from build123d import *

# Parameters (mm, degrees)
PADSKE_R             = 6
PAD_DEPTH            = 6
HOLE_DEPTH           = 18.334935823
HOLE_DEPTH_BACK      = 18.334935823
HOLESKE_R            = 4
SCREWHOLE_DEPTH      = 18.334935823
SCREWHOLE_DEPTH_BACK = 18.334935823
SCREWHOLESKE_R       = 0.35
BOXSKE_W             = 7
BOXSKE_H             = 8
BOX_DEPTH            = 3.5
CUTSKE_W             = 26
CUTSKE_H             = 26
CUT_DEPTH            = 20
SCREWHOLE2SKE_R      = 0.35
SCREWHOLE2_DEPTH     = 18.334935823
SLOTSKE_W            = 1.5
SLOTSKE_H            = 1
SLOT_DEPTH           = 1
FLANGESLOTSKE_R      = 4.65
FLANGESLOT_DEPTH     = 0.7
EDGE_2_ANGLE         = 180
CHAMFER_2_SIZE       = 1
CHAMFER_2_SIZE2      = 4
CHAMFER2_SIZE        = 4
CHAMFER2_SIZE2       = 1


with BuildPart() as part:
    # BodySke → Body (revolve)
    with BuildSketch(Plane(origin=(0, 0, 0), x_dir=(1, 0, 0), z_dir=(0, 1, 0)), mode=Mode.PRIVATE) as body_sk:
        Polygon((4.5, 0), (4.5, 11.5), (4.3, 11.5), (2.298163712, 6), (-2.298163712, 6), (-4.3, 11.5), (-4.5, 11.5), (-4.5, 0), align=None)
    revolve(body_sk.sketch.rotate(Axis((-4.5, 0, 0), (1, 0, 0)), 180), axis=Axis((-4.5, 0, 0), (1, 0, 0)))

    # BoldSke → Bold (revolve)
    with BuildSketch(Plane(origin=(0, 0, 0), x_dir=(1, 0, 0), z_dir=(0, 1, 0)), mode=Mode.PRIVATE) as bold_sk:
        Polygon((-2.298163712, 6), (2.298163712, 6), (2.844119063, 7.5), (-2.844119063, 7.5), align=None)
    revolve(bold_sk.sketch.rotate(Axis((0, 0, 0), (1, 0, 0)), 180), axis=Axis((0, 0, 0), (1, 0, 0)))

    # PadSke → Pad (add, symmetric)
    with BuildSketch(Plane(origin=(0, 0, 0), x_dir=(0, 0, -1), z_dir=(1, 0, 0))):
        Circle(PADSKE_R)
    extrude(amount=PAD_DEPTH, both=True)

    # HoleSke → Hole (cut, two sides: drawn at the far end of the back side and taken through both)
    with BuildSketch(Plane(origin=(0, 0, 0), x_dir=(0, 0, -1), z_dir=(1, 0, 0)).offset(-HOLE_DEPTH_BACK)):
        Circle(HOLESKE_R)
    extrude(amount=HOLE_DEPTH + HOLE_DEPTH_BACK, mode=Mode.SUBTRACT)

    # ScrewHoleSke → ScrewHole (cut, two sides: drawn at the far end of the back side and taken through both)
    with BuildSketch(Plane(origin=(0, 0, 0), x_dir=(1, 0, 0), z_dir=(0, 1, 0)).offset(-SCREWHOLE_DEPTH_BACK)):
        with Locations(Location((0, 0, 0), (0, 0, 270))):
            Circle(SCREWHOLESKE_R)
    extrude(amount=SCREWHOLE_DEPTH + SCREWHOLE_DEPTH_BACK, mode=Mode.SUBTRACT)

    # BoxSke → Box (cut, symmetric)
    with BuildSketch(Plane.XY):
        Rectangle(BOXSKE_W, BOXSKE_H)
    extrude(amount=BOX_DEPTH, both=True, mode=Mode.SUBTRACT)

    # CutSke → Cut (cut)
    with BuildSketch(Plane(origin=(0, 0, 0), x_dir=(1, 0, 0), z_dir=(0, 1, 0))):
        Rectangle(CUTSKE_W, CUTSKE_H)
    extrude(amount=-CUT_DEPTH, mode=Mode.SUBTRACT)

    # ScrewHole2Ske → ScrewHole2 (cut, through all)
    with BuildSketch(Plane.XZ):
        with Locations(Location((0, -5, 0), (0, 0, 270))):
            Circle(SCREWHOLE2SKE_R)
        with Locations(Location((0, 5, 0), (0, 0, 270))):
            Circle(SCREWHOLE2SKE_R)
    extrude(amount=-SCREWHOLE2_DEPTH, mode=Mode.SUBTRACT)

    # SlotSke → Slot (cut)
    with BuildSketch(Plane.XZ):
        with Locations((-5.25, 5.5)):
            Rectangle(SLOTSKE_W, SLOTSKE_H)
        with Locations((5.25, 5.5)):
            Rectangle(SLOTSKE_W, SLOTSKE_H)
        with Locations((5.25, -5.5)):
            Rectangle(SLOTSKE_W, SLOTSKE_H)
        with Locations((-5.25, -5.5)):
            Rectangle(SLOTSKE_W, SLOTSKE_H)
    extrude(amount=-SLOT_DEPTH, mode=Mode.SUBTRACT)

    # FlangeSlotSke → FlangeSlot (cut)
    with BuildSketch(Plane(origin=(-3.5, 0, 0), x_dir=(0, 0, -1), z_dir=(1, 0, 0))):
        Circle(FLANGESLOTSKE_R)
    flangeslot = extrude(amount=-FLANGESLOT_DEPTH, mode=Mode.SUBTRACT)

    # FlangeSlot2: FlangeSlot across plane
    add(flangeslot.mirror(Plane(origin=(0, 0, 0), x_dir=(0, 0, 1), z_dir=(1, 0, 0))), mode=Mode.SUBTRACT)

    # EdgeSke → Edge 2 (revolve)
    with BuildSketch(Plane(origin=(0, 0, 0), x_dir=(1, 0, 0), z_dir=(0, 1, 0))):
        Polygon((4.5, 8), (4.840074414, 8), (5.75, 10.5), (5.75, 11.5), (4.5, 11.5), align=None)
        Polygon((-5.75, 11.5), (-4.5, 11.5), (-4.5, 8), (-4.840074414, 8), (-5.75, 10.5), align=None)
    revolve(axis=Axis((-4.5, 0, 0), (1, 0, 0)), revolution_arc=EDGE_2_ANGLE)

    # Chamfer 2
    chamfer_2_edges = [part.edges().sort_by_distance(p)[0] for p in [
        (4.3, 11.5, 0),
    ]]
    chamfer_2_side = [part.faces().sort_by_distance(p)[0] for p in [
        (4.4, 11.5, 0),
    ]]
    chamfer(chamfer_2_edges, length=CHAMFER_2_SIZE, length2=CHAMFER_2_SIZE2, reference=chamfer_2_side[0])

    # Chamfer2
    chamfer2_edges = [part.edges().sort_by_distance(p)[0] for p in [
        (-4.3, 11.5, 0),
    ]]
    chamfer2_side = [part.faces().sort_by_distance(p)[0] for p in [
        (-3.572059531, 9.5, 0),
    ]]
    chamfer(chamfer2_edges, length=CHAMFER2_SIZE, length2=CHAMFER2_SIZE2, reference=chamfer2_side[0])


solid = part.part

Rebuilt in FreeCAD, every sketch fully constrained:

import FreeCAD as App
import Part
import Sketcher

V = App.Vector
Q = App.Units.Quantity


def edges_at(feature, points):
    """Names of the edges that pass closest to the given points."""
    edges = feature.Shape.Edges
    near = lambda p: min(range(len(edges)), key=lambda i: edges[i].distToShape(Part.Vertex(*p))[0])
    return sorted({f"Edge{near(p) + 1}" for p in points})


def add_polygon(sketch, points):
    """Adds a closed chain of lines whose ends are joined by coincident constraints."""
    first, n = sketch.GeometryCount, len(points)
    for a, b in zip(points, points[1:] + points[:1]):
        sketch.addGeometry(Part.LineSegment(App.Vector(*a, 0), App.Vector(*b, 0)), False)
    for i in range(n):
        sketch.addConstraint(Sketcher.Constraint("Coincident", first + i, 2, first + (i + 1) % n, 1))

doc = App.newDocument("Part")
params = doc.addObject("Spreadsheet::Sheet", "Params")
for row, (alias, value) in enumerate([
    ("sketch1_width", "9 mm"),
    ("sketch1_width2", "0.2 mm"),
    ("sketch1_height", "11.5 mm"),
    ("revolution_angle", "360 deg"),
    ("revolution2_angle", "360 deg"),
    ("sketch3_diameter", "12 mm"),
    ("pad1_length", "12 mm"),
    ("sketch4_diameter", "8 mm"),
    ("sketch5_diameter", "0.7 mm"),
    ("sketch6_width", "7 mm"),
    ("sketch6_height", "8 mm"),
    ("pocket3_length", "7 mm"),
    ("sketch7_width", "26 mm"),
    ("pocket4_length", "20 mm"),
    ("sketch8_diameter", "0.7 mm"),
    ("sketch9_height", "1 mm"),
    ("sketch9_width", "1.5 mm"),
    ("pocket6_length", "1 mm"),
    ("sketch10_diameter", "9.3 mm"),
    ("pocket7_length", "0.7 mm"),
    ("sketch11_height", "1 mm"),
    ("sketch11_height2", "3.5 mm"),
    ("sketch11_width", "1.25 mm"),
    ("revolution3_angle", "180 deg"),
    ("chamfer_size", "1 mm"),
    ("chamfer_size2", "4 mm"),
    ("chamfer2_size", "4 mm"),
    ("chamfer2_size2", "1 mm"),
], start=1):
    params.set(f"A{row}", alias)
    params.set(f"B{row}", "=" + value)
    params.setAlias(f"B{row}", alias)

body = doc.addObject("PartDesign::Body", "Body")

sketch1 = body.newObject("Sketcher::SketchObject", "Sketch")
sketch1.AttachmentSupport = (doc.getObject("XZ_Plane"), [""])
sketch1.MapMode = "FlatFace"
add_polygon(sketch1, [(4.5, 0), (4.5, -11.5), (4.3, -11.5), (2.298164, -6), (-2.298164, -6), (-4.3, -11.5), (-4.5, -11.5), (-4.5, 0)])
sketch1.addConstraint(Sketcher.Constraint("Vertical", 0))
sketch1.addConstraint(Sketcher.Constraint("Horizontal", 1))
sketch1.addConstraint(Sketcher.Constraint("Horizontal", 3))
sketch1.addConstraint(Sketcher.Constraint("Horizontal", 5))
sketch1.addConstraint(Sketcher.Constraint("Vertical", 6))
sketch1.addConstraint(Sketcher.Constraint("Horizontal", 7))
sketch1.addConstraint(Sketcher.Constraint("Symmetric", 6, 2, 7, 2, -1, 1))
sketch1.addConstraint(Sketcher.Constraint("Symmetric", 1, 2, 4, 2, -2))
sketch1.addConstraint(Sketcher.Constraint("Equal", 2, 4))
sketch1.addConstraint(Sketcher.Constraint("DistanceX", 7, 1, 7, 2, 9.0))
sketch1.addConstraint(Sketcher.Constraint("Angle", 2, Q("110 deg")))
sketch1.addConstraint(Sketcher.Constraint("DistanceX", 1, 2, 1, 1, 0.2))
sketch1.addConstraint(Sketcher.Constraint("DistanceY", 0, 2, 0, 1, 11.5))
sketch1.addConstraint(Sketcher.Constraint("DistanceY", 2, 2, -1, 1, 6.0))
sketch1.setExpression("Constraints[17]", "Params.sketch1_width")
sketch1.setExpression("Constraints[19]", "Params.sketch1_width2")
sketch1.setExpression("Constraints[20]", "Params.sketch1_height")
revolution = body.newObject("PartDesign::Revolution", "Revolution")
revolution.Profile = sketch1
revolution.ReferenceAxis = (sketch1, ["H_Axis"])
revolution.setExpression("Angle", "Params.revolution_angle")

sketch2 = body.newObject("Sketcher::SketchObject", "Sketch001")
sketch2.AttachmentSupport = (doc.getObject("XZ_Plane"), [""])
sketch2.MapMode = "FlatFace"
add_polygon(sketch2, [(-2.298164, -6), (2.298164, -6), (2.844119, -7.5), (-2.844119, -7.5)])
sketch2.addConstraint(Sketcher.Constraint("Horizontal", 0))
sketch2.addConstraint(Sketcher.Constraint("Horizontal", 2))
sketch2.addConstraint(Sketcher.Constraint("Equal", 1, 3))
sketch2.addConstraint(Sketcher.Constraint("Angle", 1, Q("-70 deg")))
sketch2.addConstraint(Sketcher.Constraint("DistanceY", 0, 2, -1, 1, 6.0))
sketch2.addConstraint(Sketcher.Constraint("DistanceY", 1, 2, -1, 1, 7.5))
sketch2.addConstraint(Sketcher.Constraint("DistanceX", 2, 2, 2, 1, 5.688238))
sketch2.addConstraint(Sketcher.Constraint("DistanceX", -1, 1, 1, 2, 2.844119))
revolution2 = body.newObject("PartDesign::Revolution", "Revolution001")
revolution2.Profile = sketch2
revolution2.ReferenceAxis = (sketch2, ["H_Axis"])
revolution2.setExpression("Angle", "Params.revolution2_angle")

sketch3 = body.newObject("Sketcher::SketchObject", "Sketch002")
sketch3.AttachmentSupport = (doc.getObject("YZ_Plane"), [""])
sketch3.MapMode = "FlatFace"
sketch3.addGeometry(Part.Circle(V(0, 0, 0), V(0, 0, 1), 6), False)
sketch3.addConstraint(Sketcher.Constraint("Coincident", 0, 3, -1, 1))
sketch3.addConstraint(Sketcher.Constraint("Diameter", 0, 12.0))
sketch3.setExpression("Constraints[1]", "Params.sketch3_diameter")
pad1 = body.newObject("PartDesign::Pad", "Pad")
pad1.Profile = sketch3
pad1.setExpression("Length", "Params.pad1_length")
pad1.Midplane = True

sketch4 = body.newObject("Sketcher::SketchObject", "Sketch003")
sketch4.AttachmentSupport = (doc.getObject("YZ_Plane"), [""])
sketch4.MapMode = "FlatFace"
sketch4.addGeometry(Part.Circle(V(0, 0, 0), V(0, 0, 1), 4), False)
sketch4.addConstraint(Sketcher.Constraint("Coincident", 0, 3, -1, 1))
sketch4.addConstraint(Sketcher.Constraint("Diameter", 0, 8.0))
sketch4.setExpression("Constraints[1]", "Params.sketch4_diameter")
pocket1 = body.newObject("PartDesign::Pocket", "Pocket")
pocket1.Profile = sketch4
pocket1.Type = "ThroughAll"
pocket1.Midplane = True

sketch5 = body.newObject("Sketcher::SketchObject", "Sketch004")
sketch5.AttachmentSupport = (doc.getObject("XZ_Plane"), [""])
sketch5.MapMode = "FlatFace"
sketch5.addGeometry(Part.Circle(V(0, 0, 0), V(0, 0, 1), 0.35), False)
sketch5.addConstraint(Sketcher.Constraint("Coincident", 0, 3, -1, 1))
sketch5.addConstraint(Sketcher.Constraint("Diameter", 0, 0.7))
sketch5.setExpression("Constraints[1]", "Params.sketch5_diameter")
pocket2 = body.newObject("PartDesign::Pocket", "Pocket001")
pocket2.Profile = sketch5
pocket2.Type = "ThroughAll"
pocket2.Midplane = True

sketch6 = body.newObject("Sketcher::SketchObject", "Sketch005")
sketch6.AttachmentSupport = (doc.getObject("XY_Plane"), [""])
sketch6.MapMode = "FlatFace"
add_polygon(sketch6, [(-3.5, 4), (-3.5, -4), (3.5, -4), (3.5, 4)])
sketch6.addConstraint(Sketcher.Constraint("Vertical", 0))
sketch6.addConstraint(Sketcher.Constraint("Horizontal", 1))
sketch6.addConstraint(Sketcher.Constraint("Vertical", 2))
sketch6.addConstraint(Sketcher.Constraint("Horizontal", 3))
sketch6.addConstraint(Sketcher.Constraint("Symmetric", 0, 2, 2, 2, -1, 1))
sketch6.addConstraint(Sketcher.Constraint("DistanceX", 1, 1, 1, 2, 7.0))
sketch6.addConstraint(Sketcher.Constraint("DistanceY", 0, 2, 0, 1, 8.0))
sketch6.setExpression("Constraints[9]", "Params.sketch6_width")
sketch6.setExpression("Constraints[10]", "Params.sketch6_height")
pocket3 = body.newObject("PartDesign::Pocket", "Pocket002")
pocket3.Profile = sketch6
pocket3.setExpression("Length", "Params.pocket3_length")
pocket3.Midplane = True

sketch7 = body.newObject("Sketcher::SketchObject", "Sketch006")
sketch7.AttachmentSupport = (doc.getObject("XZ_Plane"), [""])
sketch7.MapMode = "FlatFace"
add_polygon(sketch7, [(-13, -13), (-13, 13), (13, 13), (13, -13)])
sketch7.addConstraint(Sketcher.Constraint("Vertical", 0))
sketch7.addConstraint(Sketcher.Constraint("Horizontal", 1))
sketch7.addConstraint(Sketcher.Constraint("Vertical", 2))
sketch7.addConstraint(Sketcher.Constraint("Horizontal", 3))
sketch7.addConstraint(Sketcher.Constraint("Symmetric", 0, 2, 2, 2, -1, 1))
sketch7.addConstraint(Sketcher.Constraint("Equal", 3, 0))
sketch7.addConstraint(Sketcher.Constraint("DistanceX", 1, 1, 1, 2, 26.0))
sketch7.setExpression("Constraints[10]", "Params.sketch7_width")
pocket4 = body.newObject("PartDesign::Pocket", "Pocket003")
pocket4.Profile = sketch7
pocket4.setExpression("Length", "Params.pocket4_length")
pocket4.Reversed = True

sketch8 = body.newObject("Sketcher::SketchObject", "Sketch007")
sketch8.AttachmentSupport = (doc.getObject("XZ_Plane"), [""])
sketch8.MapMode = "FlatFace"
sketch8.addGeometry(Part.Circle(V(0, -5, 0), V(0, 0, 1), 0.35), False)
sketch8.addGeometry(Part.Circle(V(0, 5, 0), V(0, 0, 1), 0.35), False)
sketch8.addConstraint(Sketcher.Constraint("Equal", 0, 1))
sketch8.addConstraint(Sketcher.Constraint("Symmetric", 0, 3, 1, 3, -1, 1))
sketch8.addConstraint(Sketcher.Constraint("PointOnObject", 0, 3, -2))
sketch8.addConstraint(Sketcher.Constraint("Diameter", 0, 0.7))
sketch8.addConstraint(Sketcher.Constraint("DistanceY", 0, 3, -1, 1, 5.0))
sketch8.setExpression("Constraints[3]", "Params.sketch8_diameter")
pocket5 = body.newObject("PartDesign::Pocket", "Pocket004")
pocket5.Profile = sketch8
pocket5.Type = "ThroughAll"

sketch9 = body.newObject("Sketcher::SketchObject", "Sketch008")
sketch9.AttachmentSupport = (doc.getObject("XZ_Plane"), [""])
sketch9.MapMode = "FlatFace"
add_polygon(sketch9, [(-6, 6), (-6, 5), (-4.5, 5), (-4.5, 6)])
add_polygon(sketch9, [(4.5, 6), (4.5, 5), (6, 5), (6, 6)])
add_polygon(sketch9, [(4.5, -5), (4.5, -6), (6, -6), (6, -5)])
add_polygon(sketch9, [(-6, -5), (-6, -6), (-4.5, -6), (-4.5, -5)])
sketch9.addConstraint(Sketcher.Constraint("Vertical", 0))
sketch9.addConstraint(Sketcher.Constraint("Horizontal", 1))
sketch9.addConstraint(Sketcher.Constraint("Vertical", 2))
sketch9.addConstraint(Sketcher.Constraint("Horizontal", 3))
sketch9.addConstraint(Sketcher.Constraint("Vertical", 4))
sketch9.addConstraint(Sketcher.Constraint("Horizontal", 5))
sketch9.addConstraint(Sketcher.Constraint("Vertical", 6))
sketch9.addConstraint(Sketcher.Constraint("Horizontal", 7))
sketch9.addConstraint(Sketcher.Constraint("Vertical", 8))
sketch9.addConstraint(Sketcher.Constraint("Horizontal", 9))
sketch9.addConstraint(Sketcher.Constraint("Vertical", 10))
sketch9.addConstraint(Sketcher.Constraint("Horizontal", 11))
sketch9.addConstraint(Sketcher.Constraint("Vertical", 12))
sketch9.addConstraint(Sketcher.Constraint("Horizontal", 13))
sketch9.addConstraint(Sketcher.Constraint("Vertical", 14))
sketch9.addConstraint(Sketcher.Constraint("Horizontal", 15))
sketch9.addConstraint(Sketcher.Constraint("Symmetric", 2, 2, 8, 2, -1, 1))
sketch9.addConstraint(Sketcher.Constraint("Symmetric", 0, 2, 10, 2, -1, 1))
sketch9.addConstraint(Sketcher.Constraint("Symmetric", 6, 2, 12, 2, -1, 1))
sketch9.addConstraint(Sketcher.Constraint("Symmetric", 4, 2, 14, 2, -1, 1))
sketch9.addConstraint(Sketcher.Constraint("Symmetric", 1, 2, 4, 2, -2))
sketch9.addConstraint(Sketcher.Constraint("Symmetric", 3, 2, 6, 2, -2))
sketch9.addConstraint(Sketcher.Constraint("DistanceY", 0, 2, 0, 1, 1.0))
sketch9.addConstraint(Sketcher.Constraint("DistanceX", 1, 1, 1, 2, 1.5))
sketch9.addConstraint(Sketcher.Constraint("DistanceX", 0, 2, -1, 1, 6.0))
sketch9.addConstraint(Sketcher.Constraint("DistanceY", -1, 1, 0, 2, 5.0))
sketch9.setExpression("Constraints[38]", "Params.sketch9_height")
sketch9.setExpression("Constraints[39]", "Params.sketch9_width")
pocket6 = body.newObject("PartDesign::Pocket", "Pocket005")
pocket6.Profile = sketch9
pocket6.setExpression("Length", "Params.pocket6_length")

sketch10 = body.newObject("Sketcher::SketchObject", "Sketch009")
sketch10.AttachmentSupport = (doc.getObject("YZ_Plane"), [""])
sketch10.MapMode = "FlatFace"
sketch10.AttachmentOffset = App.Placement(V(0, 0, -3.5), App.Rotation())
sketch10.addGeometry(Part.Circle(V(0, 0, 0), V(0, 0, 1), 4.65), False)
sketch10.addConstraint(Sketcher.Constraint("Coincident", 0, 3, -1, 1))
sketch10.addConstraint(Sketcher.Constraint("Diameter", 0, 9.3))
sketch10.setExpression("Constraints[1]", "Params.sketch10_diameter")
pocket7 = body.newObject("PartDesign::Pocket", "Pocket006")
pocket7.Profile = sketch10
pocket7.setExpression("Length", "Params.pocket7_length")
doc.recompute()

mirrored = body.newObject("PartDesign::Mirrored", "Mirrored")
mirrored.Originals = [pocket7]
mirrored.MirrorPlane = (doc.getObject("YZ_Plane"), [""])
body.Tip = mirrored

sketch11 = body.newObject("Sketcher::SketchObject", "Sketch010")
sketch11.AttachmentSupport = (doc.getObject("XZ_Plane"), [""])
sketch11.MapMode = "FlatFace"
add_polygon(sketch11, [(4.5, -8), (4.840074, -8), (5.75, -10.5), (5.75, -11.5), (4.5, -11.5)])
add_polygon(sketch11, [(-4.5, -11.5), (-5.75, -11.5), (-5.75, -10.5), (-4.840074, -8), (-4.5, -8)])
sketch11.addConstraint(Sketcher.Constraint("Horizontal", 0))
sketch11.addConstraint(Sketcher.Constraint("Vertical", 2))
sketch11.addConstraint(Sketcher.Constraint("Horizontal", 3))
sketch11.addConstraint(Sketcher.Constraint("Vertical", 4))
sketch11.addConstraint(Sketcher.Constraint("Horizontal", 5))
sketch11.addConstraint(Sketcher.Constraint("Vertical", 6))
sketch11.addConstraint(Sketcher.Constraint("Horizontal", 8))
sketch11.addConstraint(Sketcher.Constraint("Vertical", 9))
sketch11.addConstraint(Sketcher.Constraint("Symmetric", 2, 2, 5, 2, -2))
sketch11.addConstraint(Sketcher.Constraint("Symmetric", 0, 2, 7, 2, -2))
sketch11.addConstraint(Sketcher.Constraint("Horizontal", 1, 2, 6, 2))
sketch11.addConstraint(Sketcher.Constraint("Equal", 3, 5))
sketch11.addConstraint(Sketcher.Constraint("DistanceY", 2, 2, 2, 1, 1.0))
sketch11.addConstraint(Sketcher.Constraint("Angle", 1, Q("-70 deg")))
sketch11.addConstraint(Sketcher.Constraint("DistanceY", 4, 1, 4, 2, 3.5))
sketch11.addConstraint(Sketcher.Constraint("DistanceY", 0, 2, -1, 1, 8.0))
sketch11.addConstraint(Sketcher.Constraint("DistanceX", 8, 2, 4, 2, 9.0))
sketch11.addConstraint(Sketcher.Constraint("DistanceX", 3, 2, 3, 1, 1.25))
sketch11.setExpression("Constraints[22]", "Params.sketch11_height")
sketch11.setExpression("Constraints[24]", "Params.sketch11_height2")
sketch11.setExpression("Constraints[27]", "Params.sketch11_width")
revolution3 = body.newObject("PartDesign::Revolution", "Revolution002")
revolution3.Profile = sketch11
revolution3.ReferenceAxis = (sketch11, ["H_Axis"])
revolution3.setExpression("Angle", "Params.revolution3_angle")
doc.recompute()

chamfer = body.newObject("PartDesign::Chamfer", "Chamfer")
chamfer.Base = (revolution3, edges_at(revolution3, [(4.3, 11.5, 0)]))
chamfer.ChamferType = "Two distances"
chamfer.setExpression("Size", "Params.chamfer_size")
chamfer.setExpression("Size2", "Params.chamfer_size2")
chamfer.FlipDirection = True
doc.recompute()

chamfer2 = body.newObject("PartDesign::Chamfer", "Chamfer001")
chamfer2.Base = (chamfer, edges_at(chamfer, [(-4.3, 11.5, 0)]))
chamfer2.ChamferType = "Two distances"
chamfer2.setExpression("Size", "Params.chamfer2_size")
chamfer2.setExpression("Size2", "Params.chamfer2_size2")

doc.recompute()
